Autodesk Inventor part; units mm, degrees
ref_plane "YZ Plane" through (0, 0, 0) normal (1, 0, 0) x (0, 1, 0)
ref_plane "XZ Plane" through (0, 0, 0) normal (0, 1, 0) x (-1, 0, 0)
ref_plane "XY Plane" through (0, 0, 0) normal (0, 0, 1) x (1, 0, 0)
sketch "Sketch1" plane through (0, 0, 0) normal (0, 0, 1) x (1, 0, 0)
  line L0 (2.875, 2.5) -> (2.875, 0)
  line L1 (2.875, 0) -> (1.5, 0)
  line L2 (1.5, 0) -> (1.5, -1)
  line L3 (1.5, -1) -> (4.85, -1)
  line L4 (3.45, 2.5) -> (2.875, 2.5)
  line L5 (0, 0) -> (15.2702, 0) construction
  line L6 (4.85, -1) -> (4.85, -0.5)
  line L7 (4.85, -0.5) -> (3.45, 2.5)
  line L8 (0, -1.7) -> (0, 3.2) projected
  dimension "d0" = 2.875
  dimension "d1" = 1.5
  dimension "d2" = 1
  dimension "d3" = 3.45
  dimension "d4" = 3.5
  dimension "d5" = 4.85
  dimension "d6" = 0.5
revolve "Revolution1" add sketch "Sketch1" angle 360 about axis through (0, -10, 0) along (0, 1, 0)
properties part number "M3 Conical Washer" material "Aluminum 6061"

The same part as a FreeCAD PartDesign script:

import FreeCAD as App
import Part
import Sketcher
from FreeCAD import Vector
Q = App.Units.Quantity

doc = App.newDocument("Part")
body = doc.addObject("PartDesign::Body", "Body")

sketch1 = body.newObject("Sketcher::SketchObject", "Sketch")
sketch1.AttachmentSupport = (doc.getObject("XY_Plane"), [""])
sketch1.MapMode = "FlatFace"
sketch1.addGeometry([
    Part.LineSegment(Vector(3.5, 2.5, 0), Vector(2.9, 2.5, 0)),
    Part.LineSegment(Vector(2.9, 2.5, 0), Vector(2.9, 0, 0)),
    Part.LineSegment(Vector(2.9, 0, 0), Vector(1.5, 0, 0)),
    Part.LineSegment(Vector(1.5, 0, 0), Vector(1.5, -1, 0)),
    Part.LineSegment(Vector(1.5, -1, 0), Vector(4.8, -1, 0)),
    Part.LineSegment(Vector(4.8, -1, 0), Vector(4.8, -0.5, 0)),
    Part.LineSegment(Vector(4.8, -0.5, 0), Vector(3.5, 2.5, 0)),
], False)
sketch1.addConstraint([
    Sketcher.Constraint("Coincident", 0, 2, 1, 1),
    Sketcher.Constraint("Coincident", 1, 2, 2, 1),
    Sketcher.Constraint("Coincident", 2, 2, 3, 1),
    Sketcher.Constraint("Coincident", 3, 2, 4, 1),
    Sketcher.Constraint("Coincident", 4, 2, 5, 1),
    Sketcher.Constraint("Coincident", 5, 2, 6, 1),
    Sketcher.Constraint("Coincident", 6, 2, 0, 1),
    Sketcher.Constraint("Horizontal", 0),
    Sketcher.Constraint("Vertical", 1),
    Sketcher.Constraint("Horizontal", 2),
    Sketcher.Constraint("Vertical", 3),
    Sketcher.Constraint("Horizontal", 4),
    Sketcher.Constraint("Vertical", 5),
    Sketcher.Constraint("PointOnObject", 1, 2, -1),
    Sketcher.Constraint("DistanceY", 3, 2, 3, 1, Q("1 mm")),
    Sketcher.Constraint("DistanceY", 5, 1, 5, 2, Q("0.5 mm")),
    Sketcher.Constraint("DistanceX", -1, 1, 2, 2, Q("1.5 mm")),
    Sketcher.Constraint("DistanceY", 3, 2, 0, 2, Q("3.5 mm")),
    Sketcher.Constraint("DistanceX", -1, 1, 4, 2, Q("4.85 mm")),
    Sketcher.Constraint("DistanceX", -1, 1, 6, 2, Q("3.45 mm")),
    Sketcher.Constraint("DistanceX", -1, 1, 0, 2, Q("2.875 mm")),
])
revolution = body.newObject("PartDesign::Revolution", "Revolution")
revolution.Profile = sketch1
revolution.ReferenceAxis = (sketch1, ["V_Axis"])
revolution.Angle = 360

doc.recompute()
